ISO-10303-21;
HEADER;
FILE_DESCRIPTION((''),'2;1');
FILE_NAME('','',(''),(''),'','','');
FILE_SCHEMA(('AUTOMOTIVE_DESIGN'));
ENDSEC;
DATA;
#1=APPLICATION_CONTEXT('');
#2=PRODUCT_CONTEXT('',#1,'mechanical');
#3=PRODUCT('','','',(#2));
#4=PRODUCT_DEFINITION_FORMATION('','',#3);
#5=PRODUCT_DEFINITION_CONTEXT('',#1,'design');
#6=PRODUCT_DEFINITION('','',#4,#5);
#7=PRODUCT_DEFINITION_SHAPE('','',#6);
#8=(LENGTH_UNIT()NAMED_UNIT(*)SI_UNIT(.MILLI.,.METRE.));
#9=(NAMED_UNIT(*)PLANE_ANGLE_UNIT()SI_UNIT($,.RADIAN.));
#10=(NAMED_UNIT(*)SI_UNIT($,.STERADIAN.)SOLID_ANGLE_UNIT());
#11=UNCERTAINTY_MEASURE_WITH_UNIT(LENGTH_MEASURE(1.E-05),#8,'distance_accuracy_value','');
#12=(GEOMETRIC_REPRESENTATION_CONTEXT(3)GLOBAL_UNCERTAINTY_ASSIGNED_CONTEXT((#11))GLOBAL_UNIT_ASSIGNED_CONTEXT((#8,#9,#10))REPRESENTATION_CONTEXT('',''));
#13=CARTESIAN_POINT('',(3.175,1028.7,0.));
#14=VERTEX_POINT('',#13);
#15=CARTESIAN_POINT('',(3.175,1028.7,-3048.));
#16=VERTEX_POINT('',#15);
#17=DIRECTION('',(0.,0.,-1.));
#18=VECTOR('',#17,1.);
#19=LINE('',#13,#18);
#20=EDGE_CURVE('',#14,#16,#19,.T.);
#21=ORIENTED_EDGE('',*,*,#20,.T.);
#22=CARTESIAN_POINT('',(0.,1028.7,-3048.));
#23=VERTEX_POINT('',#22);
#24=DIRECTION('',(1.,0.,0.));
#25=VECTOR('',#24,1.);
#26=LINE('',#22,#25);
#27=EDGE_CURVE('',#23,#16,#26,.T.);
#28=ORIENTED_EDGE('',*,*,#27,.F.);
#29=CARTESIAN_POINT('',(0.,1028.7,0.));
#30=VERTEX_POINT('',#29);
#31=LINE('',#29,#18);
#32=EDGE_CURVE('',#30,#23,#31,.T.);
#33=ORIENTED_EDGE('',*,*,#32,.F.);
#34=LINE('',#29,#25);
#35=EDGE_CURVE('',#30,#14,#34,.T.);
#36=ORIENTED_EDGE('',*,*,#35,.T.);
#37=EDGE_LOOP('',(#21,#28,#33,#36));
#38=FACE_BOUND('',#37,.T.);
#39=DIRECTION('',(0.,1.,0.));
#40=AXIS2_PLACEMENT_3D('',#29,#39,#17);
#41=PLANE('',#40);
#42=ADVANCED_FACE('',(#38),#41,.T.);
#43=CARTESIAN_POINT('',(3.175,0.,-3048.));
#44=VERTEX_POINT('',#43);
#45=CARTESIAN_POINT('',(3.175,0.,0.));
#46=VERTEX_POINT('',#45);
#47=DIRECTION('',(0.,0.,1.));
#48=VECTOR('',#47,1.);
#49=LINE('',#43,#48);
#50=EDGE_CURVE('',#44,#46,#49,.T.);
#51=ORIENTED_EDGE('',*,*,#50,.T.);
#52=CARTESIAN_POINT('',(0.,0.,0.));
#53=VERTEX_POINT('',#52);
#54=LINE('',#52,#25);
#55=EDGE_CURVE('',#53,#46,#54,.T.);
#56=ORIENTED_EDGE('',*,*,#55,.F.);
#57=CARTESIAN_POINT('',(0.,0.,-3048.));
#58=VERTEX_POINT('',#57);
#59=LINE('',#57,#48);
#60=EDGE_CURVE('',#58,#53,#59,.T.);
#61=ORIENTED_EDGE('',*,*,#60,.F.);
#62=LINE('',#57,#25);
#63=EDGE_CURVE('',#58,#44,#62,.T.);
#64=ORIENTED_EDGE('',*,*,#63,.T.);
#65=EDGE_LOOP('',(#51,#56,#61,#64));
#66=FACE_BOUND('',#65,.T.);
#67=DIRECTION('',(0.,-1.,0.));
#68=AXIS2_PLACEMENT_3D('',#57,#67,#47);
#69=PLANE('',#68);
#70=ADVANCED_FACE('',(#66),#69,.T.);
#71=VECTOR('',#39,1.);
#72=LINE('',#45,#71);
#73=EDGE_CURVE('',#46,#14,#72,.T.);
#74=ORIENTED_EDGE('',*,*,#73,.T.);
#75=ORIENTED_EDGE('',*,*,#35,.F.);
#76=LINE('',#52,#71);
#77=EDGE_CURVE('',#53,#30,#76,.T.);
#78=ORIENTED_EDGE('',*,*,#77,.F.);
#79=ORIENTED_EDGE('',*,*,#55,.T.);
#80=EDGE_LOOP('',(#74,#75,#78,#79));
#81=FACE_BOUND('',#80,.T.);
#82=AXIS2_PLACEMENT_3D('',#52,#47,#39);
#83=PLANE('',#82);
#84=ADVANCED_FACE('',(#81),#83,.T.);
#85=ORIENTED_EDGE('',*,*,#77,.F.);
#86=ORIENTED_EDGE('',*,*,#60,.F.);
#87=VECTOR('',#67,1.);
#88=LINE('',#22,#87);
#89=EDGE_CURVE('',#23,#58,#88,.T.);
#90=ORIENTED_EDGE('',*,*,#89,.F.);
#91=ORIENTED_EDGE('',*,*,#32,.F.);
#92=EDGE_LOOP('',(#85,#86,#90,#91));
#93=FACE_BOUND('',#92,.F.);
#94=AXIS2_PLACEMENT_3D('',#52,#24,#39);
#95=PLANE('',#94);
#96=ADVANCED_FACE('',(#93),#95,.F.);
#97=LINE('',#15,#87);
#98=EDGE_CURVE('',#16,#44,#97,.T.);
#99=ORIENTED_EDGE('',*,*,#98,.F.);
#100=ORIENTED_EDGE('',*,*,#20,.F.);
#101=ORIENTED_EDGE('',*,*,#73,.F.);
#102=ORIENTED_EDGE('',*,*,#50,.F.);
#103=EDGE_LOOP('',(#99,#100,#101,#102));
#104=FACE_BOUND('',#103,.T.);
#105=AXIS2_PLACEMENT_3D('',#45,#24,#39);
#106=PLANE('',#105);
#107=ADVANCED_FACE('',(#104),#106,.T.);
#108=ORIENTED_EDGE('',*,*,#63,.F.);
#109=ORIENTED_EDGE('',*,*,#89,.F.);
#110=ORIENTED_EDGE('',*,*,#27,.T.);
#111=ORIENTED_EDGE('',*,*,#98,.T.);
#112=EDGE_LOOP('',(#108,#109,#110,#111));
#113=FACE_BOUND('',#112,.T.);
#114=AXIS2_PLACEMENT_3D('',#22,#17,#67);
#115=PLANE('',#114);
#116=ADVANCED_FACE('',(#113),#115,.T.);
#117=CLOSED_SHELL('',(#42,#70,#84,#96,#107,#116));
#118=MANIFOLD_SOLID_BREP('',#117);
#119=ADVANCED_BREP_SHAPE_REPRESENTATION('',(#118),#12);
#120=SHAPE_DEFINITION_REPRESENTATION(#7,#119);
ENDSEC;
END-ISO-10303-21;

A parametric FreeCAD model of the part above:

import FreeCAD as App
import Part
import Sketcher

V = App.Vector
Q = App.Units.Quantity

doc = App.newDocument("Part")
params = doc.addObject("Spreadsheet::Sheet", "Params")
for row, (alias, value) in enumerate([
    ("sketch1_height", "120 in"),
    ("sketch1_width", "40.5 in"),
    ("pad1_length", "0.125 in"),
], start=1):
    params.set(f"A{row}", alias)
    params.set(f"B{row}", "=" + value)
    params.setAlias(f"B{row}", alias)

body = doc.addObject("PartDesign::Body", "Body")

sketch1 = body.newObject("Sketcher::SketchObject", "Sketch")
sketch1.AttachmentSupport = (doc.getObject("YZ_Plane"), [""])
sketch1.MapMode = "FlatFace"
sketch1.addGeometry(Part.LineSegment(V(1029, 0, 0), V(0, 0, 0)), False)
sketch1.addGeometry(Part.LineSegment(V(0, 0, 0), V(0, -3048, 0)), False)
sketch1.addGeometry(Part.LineSegment(V(0, -3048, 0), V(1029, -3048, 0)), False)
sketch1.addGeometry(Part.LineSegment(V(1029, -3048, 0), V(1029, 0, 0)), False)
sketch1.addConstraint(Sketcher.Constraint("Coincident", 0, 2, 1, 1))
sketch1.addConstraint(Sketcher.Constraint("Coincident", 1, 2, 2, 1))
sketch1.addConstraint(Sketcher.Constraint("Coincident", 2, 2, 3, 1))
sketch1.addConstraint(Sketcher.Constraint("Coincident", 3, 2, 0, 1))
sketch1.addConstraint(Sketcher.Constraint("Horizontal", 0))
sketch1.addConstraint(Sketcher.Constraint("Vertical", 1))
sketch1.addConstraint(Sketcher.Constraint("Horizontal", 2))
sketch1.addConstraint(Sketcher.Constraint("Vertical", 3))
sketch1.addConstraint(Sketcher.Constraint("Coincident", 0, 2, -1, 1))
sketch1.addConstraint(Sketcher.Constraint("DistanceY", 1, 2, 1, 1, Q("120 in")))
sketch1.addConstraint(Sketcher.Constraint("DistanceX", 0, 2, 0, 1, Q("40.5 in")))
sketch1.setExpression("Constraints[9]", "Params.sketch1_height")
sketch1.setExpression("Constraints[10]", "Params.sketch1_width")
pad1 = body.newObject("PartDesign::Pad", "Pad")
pad1.Profile = sketch1
pad1.setExpression("Length", "Params.pad1_length")

doc.recompute()
